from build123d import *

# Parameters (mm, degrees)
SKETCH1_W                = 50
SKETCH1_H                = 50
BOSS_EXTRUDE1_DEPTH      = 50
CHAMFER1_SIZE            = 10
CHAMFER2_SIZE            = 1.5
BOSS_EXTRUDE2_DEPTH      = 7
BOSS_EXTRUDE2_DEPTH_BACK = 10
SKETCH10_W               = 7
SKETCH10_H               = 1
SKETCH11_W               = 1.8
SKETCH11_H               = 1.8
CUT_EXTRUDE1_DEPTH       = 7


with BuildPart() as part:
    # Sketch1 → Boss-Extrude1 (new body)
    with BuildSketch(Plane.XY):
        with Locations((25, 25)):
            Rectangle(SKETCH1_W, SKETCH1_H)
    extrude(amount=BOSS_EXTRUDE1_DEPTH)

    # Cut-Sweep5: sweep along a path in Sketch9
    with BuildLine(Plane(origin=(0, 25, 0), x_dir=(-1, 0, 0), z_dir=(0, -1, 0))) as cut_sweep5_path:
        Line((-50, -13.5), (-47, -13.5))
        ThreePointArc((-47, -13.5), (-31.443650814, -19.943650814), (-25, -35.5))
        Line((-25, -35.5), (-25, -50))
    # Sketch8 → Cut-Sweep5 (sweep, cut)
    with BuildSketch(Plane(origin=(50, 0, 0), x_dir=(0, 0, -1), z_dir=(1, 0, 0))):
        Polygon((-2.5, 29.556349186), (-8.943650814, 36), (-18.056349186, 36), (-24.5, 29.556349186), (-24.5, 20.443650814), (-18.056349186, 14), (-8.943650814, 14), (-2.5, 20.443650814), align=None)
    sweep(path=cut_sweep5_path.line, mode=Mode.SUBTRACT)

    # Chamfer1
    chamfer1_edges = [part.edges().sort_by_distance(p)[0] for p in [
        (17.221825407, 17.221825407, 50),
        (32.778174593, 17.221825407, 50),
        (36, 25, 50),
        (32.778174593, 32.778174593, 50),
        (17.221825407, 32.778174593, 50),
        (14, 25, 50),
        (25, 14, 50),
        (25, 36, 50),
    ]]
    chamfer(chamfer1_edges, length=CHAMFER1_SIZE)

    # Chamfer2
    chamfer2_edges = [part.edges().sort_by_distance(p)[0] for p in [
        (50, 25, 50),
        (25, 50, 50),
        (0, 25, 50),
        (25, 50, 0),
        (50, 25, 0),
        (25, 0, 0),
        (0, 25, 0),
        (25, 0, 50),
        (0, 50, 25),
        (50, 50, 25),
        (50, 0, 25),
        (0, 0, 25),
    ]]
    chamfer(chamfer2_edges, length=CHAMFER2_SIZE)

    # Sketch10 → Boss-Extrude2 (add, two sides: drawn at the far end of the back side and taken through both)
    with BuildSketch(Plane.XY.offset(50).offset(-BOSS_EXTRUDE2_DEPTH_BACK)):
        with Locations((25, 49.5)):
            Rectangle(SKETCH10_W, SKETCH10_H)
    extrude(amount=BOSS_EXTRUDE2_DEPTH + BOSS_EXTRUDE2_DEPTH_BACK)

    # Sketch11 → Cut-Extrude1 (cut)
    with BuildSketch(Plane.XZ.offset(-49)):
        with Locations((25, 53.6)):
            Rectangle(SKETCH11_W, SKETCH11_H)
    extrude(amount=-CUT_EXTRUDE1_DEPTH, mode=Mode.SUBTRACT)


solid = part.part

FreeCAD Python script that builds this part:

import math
import FreeCAD as App
import Part
import Sketcher
from FreeCAD import Vector
Q = App.Units.Quantity


def edges_at(feature, points):
    """Names of the edges that pass closest to the given points."""
    edges = feature.Shape.Edges
    near = lambda p: min(range(len(edges)), key=lambda i: edges[i].distToShape(Part.Vertex(*p))[0])
    return sorted({f"Edge{near(p) + 1}" for p in points})


def add_polygon(sketch, points):
    """Adds a closed chain of lines whose ends are joined by coincident constraints."""
    first, n = sketch.GeometryCount, len(points)
    for a, b in zip(points, points[1:] + points[:1]):
        sketch.addGeometry(Part.LineSegment(App.Vector(*a, 0), App.Vector(*b, 0)), False)
    for i in range(n):
        sketch.addConstraint(Sketcher.Constraint("Coincident", first + i, 2, first + (i + 1) % n, 1))

doc = App.newDocument("Part")
params = doc.addObject("Spreadsheet::Sheet", "Params")
for row, (alias, value) in enumerate([
    ("sketch1_width", "50 mm"),
    ("pad1_length", "50 mm"),
    ("sketch3_radius", "22 mm"),
    ("sketch3_width", "3 mm"),
    ("sketch3_height", "14.5 mm"),
    ("chamfer_size", "10 mm"),
    ("chamfer2_size", "1.5 mm"),
    ("sketch4_width", "7 mm"),
    ("sketch4_height", "1 mm"),
    ("pad2_length", "7 mm"),
    ("pad2_length2", "10 mm"),
    ("sketch5_width", "1.8 mm"),
    ("pocket1_length", "7 mm"),
], start=1):
    params.set(f"A{row}", alias)
    params.set(f"B{row}", "=" + value)
    params.setAlias(f"B{row}", alias)

body = doc.addObject("PartDesign::Body", "Body")

sketch1 = body.newObject("Sketcher::SketchObject", "Sketch")
sketch1.AttachmentSupport = (doc.getObject("XY_Plane"), [""])
sketch1.MapMode = "FlatFace"
add_polygon(sketch1, [(0, 50), (0, 0), (50, 0), (50, 50)])
sketch1.addConstraint(Sketcher.Constraint("Vertical", 0))
sketch1.addConstraint(Sketcher.Constraint("Horizontal", 1))
sketch1.addConstraint(Sketcher.Constraint("Vertical", 2))
sketch1.addConstraint(Sketcher.Constraint("Horizontal", 3))
sketch1.addConstraint(Sketcher.Constraint("Coincident", 0, 2, -1, 1))
sketch1.addConstraint(Sketcher.Constraint("Equal", 3, 0))
sketch1.addConstraint(Sketcher.Constraint("DistanceX", 1, 1, 1, 2, Q("50 mm")))
sketch1.setExpression("Constraints[10]", "Params.sketch1_width")
pad1 = body.newObject("PartDesign::Pad", "Pad")
pad1.Profile = sketch1
pad1.setExpression("Length", "Params.pad1_length")

sketch2 = body.newObject("Sketcher::SketchObject", "Sketch001")
sketch2.AttachmentSupport = (doc.getObject("YZ_Plane"), [""])
sketch2.MapMode = "FlatFace"
sketch2.AttachmentOffset = App.Placement(Vector(0, 0, 50), App.Rotation())
add_polygon(sketch2, [(29.556349, 2.5), (36, 8.943651), (36, 18.056349), (29.556349, 24.5), (20.443651, 24.5), (14, 18.056349), (14, 8.943651), (20.443651, 2.5)])
sketch2.addConstraint(Sketcher.Constraint("Vertical", 1))
sketch2.addConstraint(Sketcher.Constraint("Horizontal", 3))
sketch2.addConstraint(Sketcher.Constraint("Vertical", 5))
sketch2.addConstraint(Sketcher.Constraint("Horizontal", 7))
sketch2.addConstraint(Sketcher.Constraint("Perpendicular", 0, 2))
sketch2.addConstraint(Sketcher.Constraint("Perpendicular", 2, 4))
sketch2.addConstraint(Sketcher.Constraint("Perpendicular", 4, 6))
sketch2.addConstraint(Sketcher.Constraint("Horizontal", 1, 2, 4, 2))
sketch2.addConstraint(Sketcher.Constraint("Horizontal", 0, 2, 5, 2))
sketch2.addConstraint(Sketcher.Constraint("Vertical", 3, 2, 6, 2))
sketch2.addConstraint(Sketcher.Constraint("Vertical", 2, 2, 7, 2))
sketch2.addConstraint(Sketcher.Constraint("Equal", 7, 1))
sketch2.addConstraint(Sketcher.Constraint("DistanceX", -1, 1, 0, 2, Q("36 mm")))
sketch2.addConstraint(Sketcher.Constraint("DistanceX", -1, 1, 4, 2, Q("14 mm")))
sketch2.addConstraint(Sketcher.Constraint("DistanceY", -1, 1, 2, 2, Q("24.5 mm")))
sketch2.addConstraint(Sketcher.Constraint("DistanceX", 3, 2, 3, 1, Q("9.112698 mm")))

sketch3 = body.newObject("Sketcher::SketchObject", "Sketch002")
sketch3.AttachmentSupport = (doc.getObject("XZ_Plane"), [""])
sketch3.MapMode = "FlatFace"
sketch3.AttachmentOffset = App.Placement(Vector(0, 0, -25), App.Rotation())
sketch3.addGeometry(Part.LineSegment(Vector(50, 13.5, 0), Vector(47, 13.5, 0)), False)
sketch3.addGeometry(Part.ArcOfCircle(Part.Circle(Vector(47, 35.5, 0), Vector(0, 0, 1), 22), math.radians(180), math.radians(270)), False)
sketch3.addGeometry(Part.LineSegment(Vector(25, 35.5, 0), Vector(25, 50, 0)), False)
sketch3.addConstraint(Sketcher.Constraint("Tangent", 0, 2, 1, 2))
sketch3.addConstraint(Sketcher.Constraint("Tangent", 1, 1, 2, 1))
sketch3.addConstraint(Sketcher.Constraint("Horizontal", 0))
sketch3.addConstraint(Sketcher.Constraint("Vertical", 2))
sketch3.addConstraint(Sketcher.Constraint("Radius", 1, Q("22 mm")))
sketch3.addConstraint(Sketcher.Constraint("DistanceX", 0, 2, 0, 1, Q("3 mm")))
sketch3.addConstraint(Sketcher.Constraint("DistanceY", 2, 1, 2, 2, Q("14.5 mm")))
sketch3.addConstraint(Sketcher.Constraint("DistanceX", -1, 1, 1, 3, Q("47 mm")))
sketch3.addConstraint(Sketcher.Constraint("DistanceY", -1, 1, 2, 2, Q("50 mm")))
sketch3.setExpression("Constraints[4]", "Params.sketch3_radius")
sketch3.setExpression("Constraints[5]", "Params.sketch3_width")
sketch3.setExpression("Constraints[6]", "Params.sketch3_height")
doc.recompute()

subtractivepipe = body.newObject("PartDesign::SubtractivePipe", "SubtractivePipe")
subtractivepipe.Profile = sketch2
subtractivepipe.Spine = (sketch3, ["Edge1", "Edge2", "Edge3"])
doc.recompute()

chamfer = body.newObject("PartDesign::Chamfer", "Chamfer")
chamfer.Base = (subtractivepipe, edges_at(subtractivepipe, [
    (17.222, 17.222, 50),
    (32.778, 17.222, 50),
    (36, 25, 50),
    (32.778, 32.778, 50),
    (17.222, 32.778, 50),
    (14, 25, 50),
    (25, 14, 50),
    (25, 36, 50),
]))
chamfer.setExpression("Size", "Params.chamfer_size")
doc.recompute()

chamfer2 = body.newObject("PartDesign::Chamfer", "Chamfer001")
chamfer2.Base = (chamfer, edges_at(chamfer, [
    (50, 25, 50),
    (25, 50, 50),
    (0, 25, 50),
    (25, 50, 0),
    (50, 25, 0),
    (25, 0, 0),
    (0, 25, 0),
    (25, 0, 50),
    (0, 50, 25),
    (50, 50, 25),
    (50, 0, 25),
    (0, 0, 25),
]))
chamfer2.setExpression("Size", "Params.chamfer2_size")

sketch4 = body.newObject("Sketcher::SketchObject", "Sketch003")
sketch4.AttachmentSupport = (doc.getObject("XY_Plane"), [""])
sketch4.MapMode = "FlatFace"
sketch4.AttachmentOffset = App.Placement(Vector(0, 0, 50), App.Rotation())
add_polygon(sketch4, [(21.5, 50), (21.5, 49), (28.5, 49), (28.5, 50)])
sketch4.addConstraint(Sketcher.Constraint("Vertical", 0))
sketch4.addConstraint(Sketcher.Constraint("Horizontal", 1))
sketch4.addConstraint(Sketcher.Constraint("Vertical", 2))
sketch4.addConstraint(Sketcher.Constraint("Horizontal", 3))
sketch4.addConstraint(Sketcher.Constraint("DistanceX", 1, 1, 1, 2, Q("7 mm")))
sketch4.addConstraint(Sketcher.Constraint("DistanceY", 0, 2, 0, 1, Q("1 mm")))
sketch4.addConstraint(Sketcher.Constraint("DistanceY", -1, 1, 0, 2, Q("49 mm")))
sketch4.addConstraint(Sketcher.Constraint("DistanceX", -1, 1, 0, 2, Q("21.5 mm")))
sketch4.setExpression("Constraints[8]", "Params.sketch4_width")
sketch4.setExpression("Constraints[9]", "Params.sketch4_height")
pad2 = body.newObject("PartDesign::Pad", "Pad001")
pad2.Profile = sketch4
pad2.Type = "TwoLengths"
pad2.setExpression("Length", "Params.pad2_length")
pad2.setExpression("Length2", "Params.pad2_length2")

sketch5 = body.newObject("Sketcher::SketchObject", "Sketch004")
sketch5.AttachmentSupport = (doc.getObject("XZ_Plane"), [""])
sketch5.MapMode = "FlatFace"
sketch5.AttachmentOffset = App.Placement(Vector(0, 0, -49), App.Rotation())
add_polygon(sketch5, [(24.1, 54.5), (24.1, 52.7), (25.9, 52.7), (25.9, 54.5)])
sketch5.addConstraint(Sketcher.Constraint("Vertical", 0))
sketch5.addConstraint(Sketcher.Constraint("Horizontal", 1))
sketch5.addConstraint(Sketcher.Constraint("Vertical", 2))
sketch5.addConstraint(Sketcher.Constraint("Horizontal", 3))
sketch5.addConstraint(Sketcher.Constraint("Equal", 3, 0))
sketch5.addConstraint(Sketcher.Constraint("DistanceX", 1, 1, 1, 2, Q("1.8 mm")))
sketch5.addConstraint(Sketcher.Constraint("DistanceX", -1, 1, 0, 2, Q("24.1 mm")))
sketch5.addConstraint(Sketcher.Constraint("DistanceY", -1, 1, 0, 2, Q("52.7 mm")))
sketch5.setExpression("Constraints[9]", "Params.sketch5_width")
pocket1 = body.newObject("PartDesign::Pocket", "Pocket")
pocket1.Profile = sketch5
pocket1.setExpression("Length", "Params.pocket1_length")

doc.recompute()
